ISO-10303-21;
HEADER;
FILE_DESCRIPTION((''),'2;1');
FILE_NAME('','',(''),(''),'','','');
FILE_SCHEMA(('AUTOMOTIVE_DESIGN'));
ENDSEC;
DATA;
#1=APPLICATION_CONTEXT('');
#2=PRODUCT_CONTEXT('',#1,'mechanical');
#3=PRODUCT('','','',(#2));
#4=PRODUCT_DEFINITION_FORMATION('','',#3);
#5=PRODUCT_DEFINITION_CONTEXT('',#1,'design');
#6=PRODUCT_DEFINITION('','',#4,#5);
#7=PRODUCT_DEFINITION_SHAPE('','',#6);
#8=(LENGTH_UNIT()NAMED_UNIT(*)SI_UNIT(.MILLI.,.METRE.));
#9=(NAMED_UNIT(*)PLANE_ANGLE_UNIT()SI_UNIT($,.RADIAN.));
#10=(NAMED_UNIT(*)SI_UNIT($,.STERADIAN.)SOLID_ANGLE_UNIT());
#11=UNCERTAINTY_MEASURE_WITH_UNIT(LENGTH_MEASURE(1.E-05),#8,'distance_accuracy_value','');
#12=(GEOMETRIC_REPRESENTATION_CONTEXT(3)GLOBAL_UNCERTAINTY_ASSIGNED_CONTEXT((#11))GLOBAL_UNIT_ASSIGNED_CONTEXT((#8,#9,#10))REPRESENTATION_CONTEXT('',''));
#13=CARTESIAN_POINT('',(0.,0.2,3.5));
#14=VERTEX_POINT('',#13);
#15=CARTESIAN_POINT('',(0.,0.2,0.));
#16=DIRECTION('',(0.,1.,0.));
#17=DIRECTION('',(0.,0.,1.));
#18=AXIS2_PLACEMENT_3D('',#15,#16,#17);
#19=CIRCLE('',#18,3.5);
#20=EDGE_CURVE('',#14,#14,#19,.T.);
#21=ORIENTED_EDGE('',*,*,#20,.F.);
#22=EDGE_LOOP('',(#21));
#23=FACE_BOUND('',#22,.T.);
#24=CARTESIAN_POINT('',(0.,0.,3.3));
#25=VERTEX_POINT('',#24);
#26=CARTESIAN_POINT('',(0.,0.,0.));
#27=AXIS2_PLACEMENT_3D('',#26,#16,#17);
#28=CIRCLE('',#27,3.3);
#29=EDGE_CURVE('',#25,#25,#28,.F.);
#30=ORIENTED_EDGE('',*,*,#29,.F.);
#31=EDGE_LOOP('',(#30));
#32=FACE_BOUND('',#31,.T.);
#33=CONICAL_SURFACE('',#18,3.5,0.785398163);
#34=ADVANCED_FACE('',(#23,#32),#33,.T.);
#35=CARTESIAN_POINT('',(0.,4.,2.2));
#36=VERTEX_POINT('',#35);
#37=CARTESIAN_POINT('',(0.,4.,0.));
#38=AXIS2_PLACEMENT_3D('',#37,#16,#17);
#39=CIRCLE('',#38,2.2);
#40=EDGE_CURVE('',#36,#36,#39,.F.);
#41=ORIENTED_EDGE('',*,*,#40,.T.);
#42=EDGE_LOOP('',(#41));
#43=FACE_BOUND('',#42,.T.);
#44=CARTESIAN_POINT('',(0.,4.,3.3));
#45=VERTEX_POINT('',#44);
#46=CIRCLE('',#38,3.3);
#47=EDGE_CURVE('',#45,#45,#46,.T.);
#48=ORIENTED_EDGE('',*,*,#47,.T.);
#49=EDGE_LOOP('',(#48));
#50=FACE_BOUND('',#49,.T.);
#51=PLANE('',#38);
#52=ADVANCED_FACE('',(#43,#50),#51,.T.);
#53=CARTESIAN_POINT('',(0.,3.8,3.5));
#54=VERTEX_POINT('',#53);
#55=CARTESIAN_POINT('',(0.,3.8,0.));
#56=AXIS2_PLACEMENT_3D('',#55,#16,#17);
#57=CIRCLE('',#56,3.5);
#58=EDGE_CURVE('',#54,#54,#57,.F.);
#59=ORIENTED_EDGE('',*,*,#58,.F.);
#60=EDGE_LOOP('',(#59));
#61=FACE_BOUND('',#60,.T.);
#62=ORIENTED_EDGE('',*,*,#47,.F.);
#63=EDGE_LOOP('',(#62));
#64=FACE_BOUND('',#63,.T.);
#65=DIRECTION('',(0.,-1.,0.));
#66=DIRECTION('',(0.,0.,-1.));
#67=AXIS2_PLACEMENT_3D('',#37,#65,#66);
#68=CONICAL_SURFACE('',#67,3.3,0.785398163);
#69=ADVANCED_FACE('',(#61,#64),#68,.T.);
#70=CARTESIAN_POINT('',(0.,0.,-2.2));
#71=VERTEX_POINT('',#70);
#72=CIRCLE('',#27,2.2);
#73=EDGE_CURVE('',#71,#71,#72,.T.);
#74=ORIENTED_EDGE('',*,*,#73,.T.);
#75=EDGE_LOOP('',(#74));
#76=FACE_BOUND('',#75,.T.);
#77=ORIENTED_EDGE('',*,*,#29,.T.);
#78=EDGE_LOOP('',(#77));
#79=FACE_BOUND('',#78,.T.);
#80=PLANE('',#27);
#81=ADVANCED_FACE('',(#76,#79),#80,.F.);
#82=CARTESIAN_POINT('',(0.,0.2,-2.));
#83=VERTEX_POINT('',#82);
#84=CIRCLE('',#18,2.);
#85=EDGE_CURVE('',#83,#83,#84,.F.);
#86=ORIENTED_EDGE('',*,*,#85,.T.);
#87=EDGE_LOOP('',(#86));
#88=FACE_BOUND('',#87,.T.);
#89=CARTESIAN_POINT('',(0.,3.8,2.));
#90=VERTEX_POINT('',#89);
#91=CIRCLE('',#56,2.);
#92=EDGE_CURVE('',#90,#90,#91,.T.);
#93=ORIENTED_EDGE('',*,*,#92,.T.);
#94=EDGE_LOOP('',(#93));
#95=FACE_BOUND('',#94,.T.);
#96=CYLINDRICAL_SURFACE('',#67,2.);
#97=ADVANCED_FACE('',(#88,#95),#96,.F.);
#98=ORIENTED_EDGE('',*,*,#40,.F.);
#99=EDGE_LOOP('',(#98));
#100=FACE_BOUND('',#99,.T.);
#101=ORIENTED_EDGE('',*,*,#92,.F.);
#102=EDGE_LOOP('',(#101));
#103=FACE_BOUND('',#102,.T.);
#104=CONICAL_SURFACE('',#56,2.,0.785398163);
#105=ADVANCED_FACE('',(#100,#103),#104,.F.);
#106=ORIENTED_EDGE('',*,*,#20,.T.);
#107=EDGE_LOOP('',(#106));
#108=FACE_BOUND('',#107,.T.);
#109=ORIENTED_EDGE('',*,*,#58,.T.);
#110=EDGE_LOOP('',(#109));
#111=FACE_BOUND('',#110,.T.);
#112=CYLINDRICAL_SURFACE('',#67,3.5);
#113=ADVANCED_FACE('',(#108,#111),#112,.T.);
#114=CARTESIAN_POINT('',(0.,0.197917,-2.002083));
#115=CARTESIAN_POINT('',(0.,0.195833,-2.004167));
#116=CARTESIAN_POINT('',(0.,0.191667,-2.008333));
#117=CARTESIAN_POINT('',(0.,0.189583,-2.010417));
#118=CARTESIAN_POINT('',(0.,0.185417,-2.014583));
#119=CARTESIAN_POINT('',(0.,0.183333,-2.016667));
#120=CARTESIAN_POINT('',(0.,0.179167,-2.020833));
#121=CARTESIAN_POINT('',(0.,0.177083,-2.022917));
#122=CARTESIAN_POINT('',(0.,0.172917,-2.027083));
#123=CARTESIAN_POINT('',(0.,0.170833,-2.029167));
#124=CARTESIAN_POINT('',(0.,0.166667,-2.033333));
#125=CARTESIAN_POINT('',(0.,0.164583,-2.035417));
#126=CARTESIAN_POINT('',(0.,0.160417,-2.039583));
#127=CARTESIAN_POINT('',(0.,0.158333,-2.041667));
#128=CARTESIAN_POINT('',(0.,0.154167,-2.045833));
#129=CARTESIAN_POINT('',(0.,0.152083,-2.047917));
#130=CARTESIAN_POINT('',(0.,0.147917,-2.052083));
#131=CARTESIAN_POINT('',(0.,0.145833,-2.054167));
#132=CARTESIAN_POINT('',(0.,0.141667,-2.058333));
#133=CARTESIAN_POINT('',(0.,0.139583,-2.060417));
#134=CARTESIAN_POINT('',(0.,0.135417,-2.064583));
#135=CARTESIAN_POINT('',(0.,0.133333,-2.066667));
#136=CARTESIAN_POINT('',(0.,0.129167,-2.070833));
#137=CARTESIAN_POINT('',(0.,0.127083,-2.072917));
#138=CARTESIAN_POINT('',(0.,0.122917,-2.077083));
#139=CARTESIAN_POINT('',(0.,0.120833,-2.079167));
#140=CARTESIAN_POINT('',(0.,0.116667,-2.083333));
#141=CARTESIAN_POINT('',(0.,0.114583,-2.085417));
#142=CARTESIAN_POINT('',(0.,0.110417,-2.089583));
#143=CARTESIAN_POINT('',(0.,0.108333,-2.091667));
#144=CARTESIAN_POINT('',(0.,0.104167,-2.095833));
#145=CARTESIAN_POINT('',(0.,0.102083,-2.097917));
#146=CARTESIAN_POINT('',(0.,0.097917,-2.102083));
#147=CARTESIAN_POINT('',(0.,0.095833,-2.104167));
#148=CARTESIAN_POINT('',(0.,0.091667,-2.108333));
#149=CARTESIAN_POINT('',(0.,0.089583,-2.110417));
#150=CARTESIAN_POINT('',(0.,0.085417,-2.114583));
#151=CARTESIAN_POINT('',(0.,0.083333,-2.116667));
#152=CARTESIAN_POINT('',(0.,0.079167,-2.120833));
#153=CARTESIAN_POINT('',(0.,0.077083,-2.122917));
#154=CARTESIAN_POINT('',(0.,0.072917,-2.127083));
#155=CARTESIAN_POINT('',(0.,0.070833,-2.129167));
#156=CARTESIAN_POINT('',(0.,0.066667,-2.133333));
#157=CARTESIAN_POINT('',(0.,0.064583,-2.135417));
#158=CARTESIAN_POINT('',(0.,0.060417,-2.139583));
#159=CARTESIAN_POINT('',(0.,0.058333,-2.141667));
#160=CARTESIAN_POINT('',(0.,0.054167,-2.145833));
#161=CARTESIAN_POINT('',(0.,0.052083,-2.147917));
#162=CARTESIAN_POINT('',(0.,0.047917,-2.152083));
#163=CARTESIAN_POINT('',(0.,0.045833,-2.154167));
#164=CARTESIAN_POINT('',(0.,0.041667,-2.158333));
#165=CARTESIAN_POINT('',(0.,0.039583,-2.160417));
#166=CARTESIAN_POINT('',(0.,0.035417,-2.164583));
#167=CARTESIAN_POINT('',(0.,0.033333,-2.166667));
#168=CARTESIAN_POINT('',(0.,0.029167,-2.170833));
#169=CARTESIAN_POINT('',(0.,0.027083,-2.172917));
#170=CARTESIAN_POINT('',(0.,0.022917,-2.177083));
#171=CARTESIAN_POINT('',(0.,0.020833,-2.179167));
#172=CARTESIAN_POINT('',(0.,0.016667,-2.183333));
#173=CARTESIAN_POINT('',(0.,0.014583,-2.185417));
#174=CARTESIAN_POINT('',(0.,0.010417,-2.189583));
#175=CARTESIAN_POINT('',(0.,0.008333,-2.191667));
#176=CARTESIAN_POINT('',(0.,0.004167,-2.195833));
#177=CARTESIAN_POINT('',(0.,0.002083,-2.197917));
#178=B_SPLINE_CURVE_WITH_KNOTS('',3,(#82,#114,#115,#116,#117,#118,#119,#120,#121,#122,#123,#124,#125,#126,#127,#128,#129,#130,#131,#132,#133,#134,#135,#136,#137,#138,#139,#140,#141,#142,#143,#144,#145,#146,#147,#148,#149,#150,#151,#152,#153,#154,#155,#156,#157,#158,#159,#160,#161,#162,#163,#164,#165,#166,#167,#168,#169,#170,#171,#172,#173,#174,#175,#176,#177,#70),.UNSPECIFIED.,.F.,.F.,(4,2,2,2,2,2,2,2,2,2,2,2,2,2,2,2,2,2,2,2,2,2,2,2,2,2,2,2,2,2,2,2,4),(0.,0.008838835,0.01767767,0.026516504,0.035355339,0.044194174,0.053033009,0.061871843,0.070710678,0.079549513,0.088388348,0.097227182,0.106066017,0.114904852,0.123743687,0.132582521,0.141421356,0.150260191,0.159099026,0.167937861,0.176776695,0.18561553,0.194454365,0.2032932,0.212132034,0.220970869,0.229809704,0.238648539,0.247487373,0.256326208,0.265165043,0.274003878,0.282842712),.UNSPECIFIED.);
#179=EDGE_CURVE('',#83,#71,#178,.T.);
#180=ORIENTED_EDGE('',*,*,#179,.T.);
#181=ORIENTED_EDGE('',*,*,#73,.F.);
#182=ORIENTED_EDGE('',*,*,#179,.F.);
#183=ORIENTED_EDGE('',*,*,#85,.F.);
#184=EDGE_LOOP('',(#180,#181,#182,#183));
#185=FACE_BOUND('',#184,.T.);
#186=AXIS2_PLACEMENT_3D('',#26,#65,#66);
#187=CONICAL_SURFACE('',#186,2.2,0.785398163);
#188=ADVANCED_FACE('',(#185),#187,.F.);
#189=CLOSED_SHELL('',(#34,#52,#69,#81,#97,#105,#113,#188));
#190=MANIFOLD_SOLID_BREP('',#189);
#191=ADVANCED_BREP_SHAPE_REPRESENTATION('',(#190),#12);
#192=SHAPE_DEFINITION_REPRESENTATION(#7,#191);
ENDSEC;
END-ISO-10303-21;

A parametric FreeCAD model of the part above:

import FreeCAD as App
import Part
import Sketcher


def edges_at(feature, points):
    """Names of the edges that pass closest to the given points."""
    edges = feature.Shape.Edges
    near = lambda p: min(range(len(edges)), key=lambda i: edges[i].distToShape(Part.Vertex(*p))[0])
    return sorted({f"Edge{near(p) + 1}" for p in points})

doc = App.newDocument("Part")
body = doc.addObject("PartDesign::Body", "Body")

# Sketch on XZ plane
sketch1 = body.newObject("Sketcher::SketchObject", "Sketch")
sketch1.AttachmentSupport = (doc.getObject("XZ_Plane"), [""])
sketch1.MapMode = "FlatFace"
sketch1.addGeometry([
    Part.Circle(App.Vector(0, 0, 0), App.Vector(0, 0, 1), 3.5),
    Part.Circle(App.Vector(0, 0, 0), App.Vector(0, 0, 1), 2),
], False)
sketch1.addConstraint([
    Sketcher.Constraint("Coincident", 0, 3, -1, 1),
    Sketcher.Constraint("Coincident", 1, 3, -1, 1),
    Sketcher.Constraint("Diameter", 0, 7.0),
    Sketcher.Constraint("Diameter", 1, 4.0),
])
pad1 = body.newObject("PartDesign::Pad", "Pad")
pad1.Profile = sketch1
pad1.Length = 4
pad1.Reversed = True
doc.recompute()

chamfer = body.newObject("PartDesign::Chamfer", "Chamfer")
chamfer.Base = (pad1, edges_at(pad1, [
    (0, 0, -3.5),
    (0, 4, -3.5),
    (0, 0, -2),
    (0, 4, -2),
]))
chamfer.Size = 0.2

doc.recompute()
